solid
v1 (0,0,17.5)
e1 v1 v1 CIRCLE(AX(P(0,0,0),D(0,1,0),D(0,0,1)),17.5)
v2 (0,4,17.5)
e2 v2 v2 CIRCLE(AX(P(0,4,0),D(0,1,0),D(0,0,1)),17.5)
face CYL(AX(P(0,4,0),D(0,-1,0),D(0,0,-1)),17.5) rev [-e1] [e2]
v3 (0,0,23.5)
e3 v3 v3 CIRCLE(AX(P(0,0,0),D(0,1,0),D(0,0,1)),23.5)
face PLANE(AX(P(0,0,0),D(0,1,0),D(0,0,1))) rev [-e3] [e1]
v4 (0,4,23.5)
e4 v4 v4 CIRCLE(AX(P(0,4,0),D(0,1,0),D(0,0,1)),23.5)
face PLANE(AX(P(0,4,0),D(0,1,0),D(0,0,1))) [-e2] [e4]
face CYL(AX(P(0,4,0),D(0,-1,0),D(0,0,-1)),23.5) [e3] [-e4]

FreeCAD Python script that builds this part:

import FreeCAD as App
import Part
import Sketcher
Q = App.Units.Quantity

doc = App.newDocument("Part")
body = doc.addObject("PartDesign::Body", "Body")

# Sketch on XZ plane
sketch1 = doc.addObject("Sketcher::SketchObject", "Sketch")
body.addObject(sketch1)
sketch1.AttachmentSupport = (doc.XZ_Plane, [""])
sketch1.MapMode = "FlatFace"
sketch1.addGeometry(Part.Circle(App.Vector(0, 0, 0), App.Vector(0, 0, 1), 23.5), False)
sketch1.addGeometry(Part.Circle(App.Vector(0, 0, 0), App.Vector(0, 0, 1), 17.5), False)
sketch1.addConstraint(Sketcher.Constraint("Coincident", 0, 3, -1, 1))
sketch1.addConstraint(Sketcher.Constraint("Coincident", 1, 3, -1, 1))
sketch1.addConstraint(Sketcher.Constraint("Diameter", 0, Q("47 mm")))
sketch1.addConstraint(Sketcher.Constraint("Diameter", 1, Q("35 mm")))
pad1 = doc.addObject("PartDesign::Pad", "Pad")
body.addObject(pad1)
pad1.Profile = sketch1
pad1.Length = 4
pad1.Reversed = True

doc.recompute()
